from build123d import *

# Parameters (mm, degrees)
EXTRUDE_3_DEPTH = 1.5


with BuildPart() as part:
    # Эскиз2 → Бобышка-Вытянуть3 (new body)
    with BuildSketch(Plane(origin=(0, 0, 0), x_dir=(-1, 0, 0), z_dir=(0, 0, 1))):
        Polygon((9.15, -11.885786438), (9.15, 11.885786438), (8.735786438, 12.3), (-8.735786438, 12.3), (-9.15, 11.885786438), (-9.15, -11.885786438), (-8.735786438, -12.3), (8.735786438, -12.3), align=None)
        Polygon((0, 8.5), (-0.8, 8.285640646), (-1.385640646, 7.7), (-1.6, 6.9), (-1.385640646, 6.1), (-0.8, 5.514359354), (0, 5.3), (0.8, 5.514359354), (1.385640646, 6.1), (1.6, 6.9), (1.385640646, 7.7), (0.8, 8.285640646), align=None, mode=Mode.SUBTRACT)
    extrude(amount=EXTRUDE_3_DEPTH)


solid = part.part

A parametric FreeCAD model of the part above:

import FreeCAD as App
import Part
import Sketcher
from FreeCAD import Vector
Q = App.Units.Quantity

doc = App.newDocument("Part")
body = doc.addObject("PartDesign::Body", "Body")

sketch1 = body.newObject("Sketcher::SketchObject", "Sketch")
sketch1.AttachmentSupport = (doc.getObject("XY_Plane"), [""])
sketch1.MapMode = "FlatFace"
sketch1.addGeometry([
    Part.LineSegment(Vector(-9.15, 11.885786, 0), Vector(-9.15, -11.885786, 0)),
    Part.LineSegment(Vector(-9.15, -11.885786, 0), Vector(-8.735786, -12.3, 0)),
    Part.LineSegment(Vector(-8.735786, -12.3, 0), Vector(8.735786, -12.3, 0)),
    Part.LineSegment(Vector(8.735786, -12.3, 0), Vector(9.15, -11.885786, 0)),
    Part.LineSegment(Vector(9.15, -11.885786, 0), Vector(9.15, 11.885786, 0)),
    Part.LineSegment(Vector(9.15, 11.885786, 0), Vector(8.735786, 12.3, 0)),
    Part.LineSegment(Vector(8.735786, 12.3, 0), Vector(-8.735786, 12.3, 0)),
    Part.LineSegment(Vector(-8.735786, 12.3, 0), Vector(-9.15, 11.885786, 0)),
    Part.LineSegment(Vector(0.8, -8.285641, 0), Vector(0, -8.5, 0)),
    Part.LineSegment(Vector(0, -8.5, 0), Vector(-0.8, -8.285641, 0)),
    Part.LineSegment(Vector(-0.8, -8.285641, 0), Vector(-1.385641, -7.7, 0)),
    Part.LineSegment(Vector(-1.385641, -7.7, 0), Vector(-1.6, -6.9, 0)),
    Part.LineSegment(Vector(-1.6, -6.9, 0), Vector(-1.385641, -6.1, 0)),
    Part.LineSegment(Vector(-1.385641, -6.1, 0), Vector(-0.8, -5.514359, 0)),
    Part.LineSegment(Vector(-0.8, -5.514359, 0), Vector(0, -5.3, 0)),
    Part.LineSegment(Vector(0, -5.3, 0), Vector(0.8, -5.514359, 0)),
    Part.LineSegment(Vector(0.8, -5.514359, 0), Vector(1.385641, -6.1, 0)),
    Part.LineSegment(Vector(1.385641, -6.1, 0), Vector(1.6, -6.9, 0)),
    Part.LineSegment(Vector(1.6, -6.9, 0), Vector(1.385641, -7.7, 0)),
    Part.LineSegment(Vector(1.385641, -7.7, 0), Vector(0.8, -8.285641, 0)),
], False)
sketch1.addConstraint([
    Sketcher.Constraint("Coincident", 0, 2, 1, 1),
    Sketcher.Constraint("Coincident", 1, 2, 2, 1),
    Sketcher.Constraint("Coincident", 2, 2, 3, 1),
    Sketcher.Constraint("Coincident", 3, 2, 4, 1),
    Sketcher.Constraint("Coincident", 4, 2, 5, 1),
    Sketcher.Constraint("Coincident", 5, 2, 6, 1),
    Sketcher.Constraint("Coincident", 6, 2, 7, 1),
    Sketcher.Constraint("Coincident", 7, 2, 0, 1),
    Sketcher.Constraint("Coincident", 8, 2, 9, 1),
    Sketcher.Constraint("Coincident", 9, 2, 10, 1),
    Sketcher.Constraint("Coincident", 10, 2, 11, 1),
    Sketcher.Constraint("Coincident", 11, 2, 12, 1),
    Sketcher.Constraint("Coincident", 12, 2, 13, 1),
    Sketcher.Constraint("Coincident", 13, 2, 14, 1),
    Sketcher.Constraint("Coincident", 14, 2, 15, 1),
    Sketcher.Constraint("Coincident", 15, 2, 16, 1),
    Sketcher.Constraint("Coincident", 16, 2, 17, 1),
    Sketcher.Constraint("Coincident", 17, 2, 18, 1),
    Sketcher.Constraint("Coincident", 18, 2, 19, 1),
    Sketcher.Constraint("Coincident", 19, 2, 8, 1),
    Sketcher.Constraint("Vertical", 0),
    Sketcher.Constraint("Horizontal", 2),
    Sketcher.Constraint("Vertical", 4),
    Sketcher.Constraint("Horizontal", 6),
    Sketcher.Constraint("Symmetric", 0, 2, 4, 2, -1, 1),
    Sketcher.Constraint("Symmetric", 1, 2, 5, 2, -1, 1),
    Sketcher.Constraint("Symmetric", 13, 2, 15, 2, -2),
    Sketcher.Constraint("Symmetric", 12, 2, 16, 2, -2),
    Sketcher.Constraint("Symmetric", 11, 2, 17, 2, -2),
    Sketcher.Constraint("Symmetric", 10, 2, 18, 2, -2),
    Sketcher.Constraint("Symmetric", 9, 2, 19, 2, -2),
    Sketcher.Constraint("PointOnObject", 8, 2, -2),
    Sketcher.Constraint("PointOnObject", 14, 2, -2),
    Sketcher.Constraint("Perpendicular", 1, 3),
    Sketcher.Constraint("Perpendicular", 5, 7),
    Sketcher.Constraint("Perpendicular", 7, 10),
    Sketcher.Constraint("Perpendicular", 8, 11),
    Sketcher.Constraint("Perpendicular", 9, 12),
    Sketcher.Constraint("Perpendicular", 10, 13),
    Sketcher.Constraint("Perpendicular", 11, 14),
    Sketcher.Constraint("Perpendicular", 13, 16),
    Sketcher.Constraint("Horizontal", 0, 2, 3, 2),
    Sketcher.Constraint("Horizontal", 4, 2, 7, 2),
    Sketcher.Constraint("Vertical", 10, 2, 12, 2),
    Sketcher.Constraint("Vertical", 9, 2, 13, 2),
    Sketcher.Constraint("Equal", 9, 10),
    Sketcher.Constraint("Equal", 10, 11),
    Sketcher.Constraint("Angle", 8, Q("-165 deg")),
    Sketcher.Constraint("DistanceY", 1, 2, -1, 1, Q("12.3 mm")),
    Sketcher.Constraint("DistanceY", 8, 2, -1, 1, Q("8.5 mm")),
    Sketcher.Constraint("DistanceX", 9, 2, -1, 1, Q("0.8 mm")),
    Sketcher.Constraint("DistanceX", 0, 2, 3, 2, Q("18.3 mm")),
    Sketcher.Constraint("DistanceX", 2, 1, 2, 2, Q("17.471573 mm")),
])
pad1 = body.newObject("PartDesign::Pad", "Pad")
pad1.Profile = sketch1
pad1.Length = 1.5

doc.recompute()
